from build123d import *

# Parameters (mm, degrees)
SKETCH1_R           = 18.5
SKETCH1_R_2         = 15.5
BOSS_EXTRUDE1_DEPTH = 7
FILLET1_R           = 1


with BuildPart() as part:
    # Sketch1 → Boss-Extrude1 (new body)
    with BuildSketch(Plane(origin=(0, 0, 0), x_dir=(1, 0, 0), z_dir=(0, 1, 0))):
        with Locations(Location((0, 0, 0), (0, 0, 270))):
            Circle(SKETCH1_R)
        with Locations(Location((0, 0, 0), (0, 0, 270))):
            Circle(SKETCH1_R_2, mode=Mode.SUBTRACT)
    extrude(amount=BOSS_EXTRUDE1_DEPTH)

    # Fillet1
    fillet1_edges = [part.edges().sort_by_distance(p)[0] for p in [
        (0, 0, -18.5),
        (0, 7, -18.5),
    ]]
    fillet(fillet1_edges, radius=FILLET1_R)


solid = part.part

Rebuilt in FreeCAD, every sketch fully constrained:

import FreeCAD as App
import Part
import Sketcher

V = App.Vector


def edges_at(feature, points):
    """Names of the edges that pass closest to the given points."""
    edges = feature.Shape.Edges
    near = lambda p: min(range(len(edges)), key=lambda i: edges[i].distToShape(Part.Vertex(*p))[0])
    return sorted({f"Edge{near(p) + 1}" for p in points})

doc = App.newDocument("Part")
body = doc.addObject("PartDesign::Body", "Body")

sketch1 = body.newObject("Sketcher::SketchObject", "Sketch")
sketch1.AttachmentSupport = (doc.getObject("XZ_Plane"), [""])
sketch1.MapMode = "FlatFace"
sketch1.addGeometry(Part.Circle(V(0, 0, 0), V(0, 0, 1), 18), False)
sketch1.addGeometry(Part.Circle(V(0, 0, 0), V(0, 0, 1), 16), False)
sketch1.addConstraint(Sketcher.Constraint("Coincident", 0, 3, -1, 1))
sketch1.addConstraint(Sketcher.Constraint("Coincident", 1, 3, -1, 1))
sketch1.addConstraint(Sketcher.Constraint("Diameter", 0, 37.0))
sketch1.addConstraint(Sketcher.Constraint("Diameter", 1, 31.0))
pad1 = body.newObject("PartDesign::Pad", "Pad")
pad1.Profile = sketch1
pad1.Length = 7
pad1.Reversed = True
doc.recompute()

fillet = body.newObject("PartDesign::Fillet", "Fillet")
fillet.Base = (pad1, edges_at(pad1, [(0, 0, -18.5), (0, 7, -18.5)]))
fillet.Radius = 1

doc.recompute()
